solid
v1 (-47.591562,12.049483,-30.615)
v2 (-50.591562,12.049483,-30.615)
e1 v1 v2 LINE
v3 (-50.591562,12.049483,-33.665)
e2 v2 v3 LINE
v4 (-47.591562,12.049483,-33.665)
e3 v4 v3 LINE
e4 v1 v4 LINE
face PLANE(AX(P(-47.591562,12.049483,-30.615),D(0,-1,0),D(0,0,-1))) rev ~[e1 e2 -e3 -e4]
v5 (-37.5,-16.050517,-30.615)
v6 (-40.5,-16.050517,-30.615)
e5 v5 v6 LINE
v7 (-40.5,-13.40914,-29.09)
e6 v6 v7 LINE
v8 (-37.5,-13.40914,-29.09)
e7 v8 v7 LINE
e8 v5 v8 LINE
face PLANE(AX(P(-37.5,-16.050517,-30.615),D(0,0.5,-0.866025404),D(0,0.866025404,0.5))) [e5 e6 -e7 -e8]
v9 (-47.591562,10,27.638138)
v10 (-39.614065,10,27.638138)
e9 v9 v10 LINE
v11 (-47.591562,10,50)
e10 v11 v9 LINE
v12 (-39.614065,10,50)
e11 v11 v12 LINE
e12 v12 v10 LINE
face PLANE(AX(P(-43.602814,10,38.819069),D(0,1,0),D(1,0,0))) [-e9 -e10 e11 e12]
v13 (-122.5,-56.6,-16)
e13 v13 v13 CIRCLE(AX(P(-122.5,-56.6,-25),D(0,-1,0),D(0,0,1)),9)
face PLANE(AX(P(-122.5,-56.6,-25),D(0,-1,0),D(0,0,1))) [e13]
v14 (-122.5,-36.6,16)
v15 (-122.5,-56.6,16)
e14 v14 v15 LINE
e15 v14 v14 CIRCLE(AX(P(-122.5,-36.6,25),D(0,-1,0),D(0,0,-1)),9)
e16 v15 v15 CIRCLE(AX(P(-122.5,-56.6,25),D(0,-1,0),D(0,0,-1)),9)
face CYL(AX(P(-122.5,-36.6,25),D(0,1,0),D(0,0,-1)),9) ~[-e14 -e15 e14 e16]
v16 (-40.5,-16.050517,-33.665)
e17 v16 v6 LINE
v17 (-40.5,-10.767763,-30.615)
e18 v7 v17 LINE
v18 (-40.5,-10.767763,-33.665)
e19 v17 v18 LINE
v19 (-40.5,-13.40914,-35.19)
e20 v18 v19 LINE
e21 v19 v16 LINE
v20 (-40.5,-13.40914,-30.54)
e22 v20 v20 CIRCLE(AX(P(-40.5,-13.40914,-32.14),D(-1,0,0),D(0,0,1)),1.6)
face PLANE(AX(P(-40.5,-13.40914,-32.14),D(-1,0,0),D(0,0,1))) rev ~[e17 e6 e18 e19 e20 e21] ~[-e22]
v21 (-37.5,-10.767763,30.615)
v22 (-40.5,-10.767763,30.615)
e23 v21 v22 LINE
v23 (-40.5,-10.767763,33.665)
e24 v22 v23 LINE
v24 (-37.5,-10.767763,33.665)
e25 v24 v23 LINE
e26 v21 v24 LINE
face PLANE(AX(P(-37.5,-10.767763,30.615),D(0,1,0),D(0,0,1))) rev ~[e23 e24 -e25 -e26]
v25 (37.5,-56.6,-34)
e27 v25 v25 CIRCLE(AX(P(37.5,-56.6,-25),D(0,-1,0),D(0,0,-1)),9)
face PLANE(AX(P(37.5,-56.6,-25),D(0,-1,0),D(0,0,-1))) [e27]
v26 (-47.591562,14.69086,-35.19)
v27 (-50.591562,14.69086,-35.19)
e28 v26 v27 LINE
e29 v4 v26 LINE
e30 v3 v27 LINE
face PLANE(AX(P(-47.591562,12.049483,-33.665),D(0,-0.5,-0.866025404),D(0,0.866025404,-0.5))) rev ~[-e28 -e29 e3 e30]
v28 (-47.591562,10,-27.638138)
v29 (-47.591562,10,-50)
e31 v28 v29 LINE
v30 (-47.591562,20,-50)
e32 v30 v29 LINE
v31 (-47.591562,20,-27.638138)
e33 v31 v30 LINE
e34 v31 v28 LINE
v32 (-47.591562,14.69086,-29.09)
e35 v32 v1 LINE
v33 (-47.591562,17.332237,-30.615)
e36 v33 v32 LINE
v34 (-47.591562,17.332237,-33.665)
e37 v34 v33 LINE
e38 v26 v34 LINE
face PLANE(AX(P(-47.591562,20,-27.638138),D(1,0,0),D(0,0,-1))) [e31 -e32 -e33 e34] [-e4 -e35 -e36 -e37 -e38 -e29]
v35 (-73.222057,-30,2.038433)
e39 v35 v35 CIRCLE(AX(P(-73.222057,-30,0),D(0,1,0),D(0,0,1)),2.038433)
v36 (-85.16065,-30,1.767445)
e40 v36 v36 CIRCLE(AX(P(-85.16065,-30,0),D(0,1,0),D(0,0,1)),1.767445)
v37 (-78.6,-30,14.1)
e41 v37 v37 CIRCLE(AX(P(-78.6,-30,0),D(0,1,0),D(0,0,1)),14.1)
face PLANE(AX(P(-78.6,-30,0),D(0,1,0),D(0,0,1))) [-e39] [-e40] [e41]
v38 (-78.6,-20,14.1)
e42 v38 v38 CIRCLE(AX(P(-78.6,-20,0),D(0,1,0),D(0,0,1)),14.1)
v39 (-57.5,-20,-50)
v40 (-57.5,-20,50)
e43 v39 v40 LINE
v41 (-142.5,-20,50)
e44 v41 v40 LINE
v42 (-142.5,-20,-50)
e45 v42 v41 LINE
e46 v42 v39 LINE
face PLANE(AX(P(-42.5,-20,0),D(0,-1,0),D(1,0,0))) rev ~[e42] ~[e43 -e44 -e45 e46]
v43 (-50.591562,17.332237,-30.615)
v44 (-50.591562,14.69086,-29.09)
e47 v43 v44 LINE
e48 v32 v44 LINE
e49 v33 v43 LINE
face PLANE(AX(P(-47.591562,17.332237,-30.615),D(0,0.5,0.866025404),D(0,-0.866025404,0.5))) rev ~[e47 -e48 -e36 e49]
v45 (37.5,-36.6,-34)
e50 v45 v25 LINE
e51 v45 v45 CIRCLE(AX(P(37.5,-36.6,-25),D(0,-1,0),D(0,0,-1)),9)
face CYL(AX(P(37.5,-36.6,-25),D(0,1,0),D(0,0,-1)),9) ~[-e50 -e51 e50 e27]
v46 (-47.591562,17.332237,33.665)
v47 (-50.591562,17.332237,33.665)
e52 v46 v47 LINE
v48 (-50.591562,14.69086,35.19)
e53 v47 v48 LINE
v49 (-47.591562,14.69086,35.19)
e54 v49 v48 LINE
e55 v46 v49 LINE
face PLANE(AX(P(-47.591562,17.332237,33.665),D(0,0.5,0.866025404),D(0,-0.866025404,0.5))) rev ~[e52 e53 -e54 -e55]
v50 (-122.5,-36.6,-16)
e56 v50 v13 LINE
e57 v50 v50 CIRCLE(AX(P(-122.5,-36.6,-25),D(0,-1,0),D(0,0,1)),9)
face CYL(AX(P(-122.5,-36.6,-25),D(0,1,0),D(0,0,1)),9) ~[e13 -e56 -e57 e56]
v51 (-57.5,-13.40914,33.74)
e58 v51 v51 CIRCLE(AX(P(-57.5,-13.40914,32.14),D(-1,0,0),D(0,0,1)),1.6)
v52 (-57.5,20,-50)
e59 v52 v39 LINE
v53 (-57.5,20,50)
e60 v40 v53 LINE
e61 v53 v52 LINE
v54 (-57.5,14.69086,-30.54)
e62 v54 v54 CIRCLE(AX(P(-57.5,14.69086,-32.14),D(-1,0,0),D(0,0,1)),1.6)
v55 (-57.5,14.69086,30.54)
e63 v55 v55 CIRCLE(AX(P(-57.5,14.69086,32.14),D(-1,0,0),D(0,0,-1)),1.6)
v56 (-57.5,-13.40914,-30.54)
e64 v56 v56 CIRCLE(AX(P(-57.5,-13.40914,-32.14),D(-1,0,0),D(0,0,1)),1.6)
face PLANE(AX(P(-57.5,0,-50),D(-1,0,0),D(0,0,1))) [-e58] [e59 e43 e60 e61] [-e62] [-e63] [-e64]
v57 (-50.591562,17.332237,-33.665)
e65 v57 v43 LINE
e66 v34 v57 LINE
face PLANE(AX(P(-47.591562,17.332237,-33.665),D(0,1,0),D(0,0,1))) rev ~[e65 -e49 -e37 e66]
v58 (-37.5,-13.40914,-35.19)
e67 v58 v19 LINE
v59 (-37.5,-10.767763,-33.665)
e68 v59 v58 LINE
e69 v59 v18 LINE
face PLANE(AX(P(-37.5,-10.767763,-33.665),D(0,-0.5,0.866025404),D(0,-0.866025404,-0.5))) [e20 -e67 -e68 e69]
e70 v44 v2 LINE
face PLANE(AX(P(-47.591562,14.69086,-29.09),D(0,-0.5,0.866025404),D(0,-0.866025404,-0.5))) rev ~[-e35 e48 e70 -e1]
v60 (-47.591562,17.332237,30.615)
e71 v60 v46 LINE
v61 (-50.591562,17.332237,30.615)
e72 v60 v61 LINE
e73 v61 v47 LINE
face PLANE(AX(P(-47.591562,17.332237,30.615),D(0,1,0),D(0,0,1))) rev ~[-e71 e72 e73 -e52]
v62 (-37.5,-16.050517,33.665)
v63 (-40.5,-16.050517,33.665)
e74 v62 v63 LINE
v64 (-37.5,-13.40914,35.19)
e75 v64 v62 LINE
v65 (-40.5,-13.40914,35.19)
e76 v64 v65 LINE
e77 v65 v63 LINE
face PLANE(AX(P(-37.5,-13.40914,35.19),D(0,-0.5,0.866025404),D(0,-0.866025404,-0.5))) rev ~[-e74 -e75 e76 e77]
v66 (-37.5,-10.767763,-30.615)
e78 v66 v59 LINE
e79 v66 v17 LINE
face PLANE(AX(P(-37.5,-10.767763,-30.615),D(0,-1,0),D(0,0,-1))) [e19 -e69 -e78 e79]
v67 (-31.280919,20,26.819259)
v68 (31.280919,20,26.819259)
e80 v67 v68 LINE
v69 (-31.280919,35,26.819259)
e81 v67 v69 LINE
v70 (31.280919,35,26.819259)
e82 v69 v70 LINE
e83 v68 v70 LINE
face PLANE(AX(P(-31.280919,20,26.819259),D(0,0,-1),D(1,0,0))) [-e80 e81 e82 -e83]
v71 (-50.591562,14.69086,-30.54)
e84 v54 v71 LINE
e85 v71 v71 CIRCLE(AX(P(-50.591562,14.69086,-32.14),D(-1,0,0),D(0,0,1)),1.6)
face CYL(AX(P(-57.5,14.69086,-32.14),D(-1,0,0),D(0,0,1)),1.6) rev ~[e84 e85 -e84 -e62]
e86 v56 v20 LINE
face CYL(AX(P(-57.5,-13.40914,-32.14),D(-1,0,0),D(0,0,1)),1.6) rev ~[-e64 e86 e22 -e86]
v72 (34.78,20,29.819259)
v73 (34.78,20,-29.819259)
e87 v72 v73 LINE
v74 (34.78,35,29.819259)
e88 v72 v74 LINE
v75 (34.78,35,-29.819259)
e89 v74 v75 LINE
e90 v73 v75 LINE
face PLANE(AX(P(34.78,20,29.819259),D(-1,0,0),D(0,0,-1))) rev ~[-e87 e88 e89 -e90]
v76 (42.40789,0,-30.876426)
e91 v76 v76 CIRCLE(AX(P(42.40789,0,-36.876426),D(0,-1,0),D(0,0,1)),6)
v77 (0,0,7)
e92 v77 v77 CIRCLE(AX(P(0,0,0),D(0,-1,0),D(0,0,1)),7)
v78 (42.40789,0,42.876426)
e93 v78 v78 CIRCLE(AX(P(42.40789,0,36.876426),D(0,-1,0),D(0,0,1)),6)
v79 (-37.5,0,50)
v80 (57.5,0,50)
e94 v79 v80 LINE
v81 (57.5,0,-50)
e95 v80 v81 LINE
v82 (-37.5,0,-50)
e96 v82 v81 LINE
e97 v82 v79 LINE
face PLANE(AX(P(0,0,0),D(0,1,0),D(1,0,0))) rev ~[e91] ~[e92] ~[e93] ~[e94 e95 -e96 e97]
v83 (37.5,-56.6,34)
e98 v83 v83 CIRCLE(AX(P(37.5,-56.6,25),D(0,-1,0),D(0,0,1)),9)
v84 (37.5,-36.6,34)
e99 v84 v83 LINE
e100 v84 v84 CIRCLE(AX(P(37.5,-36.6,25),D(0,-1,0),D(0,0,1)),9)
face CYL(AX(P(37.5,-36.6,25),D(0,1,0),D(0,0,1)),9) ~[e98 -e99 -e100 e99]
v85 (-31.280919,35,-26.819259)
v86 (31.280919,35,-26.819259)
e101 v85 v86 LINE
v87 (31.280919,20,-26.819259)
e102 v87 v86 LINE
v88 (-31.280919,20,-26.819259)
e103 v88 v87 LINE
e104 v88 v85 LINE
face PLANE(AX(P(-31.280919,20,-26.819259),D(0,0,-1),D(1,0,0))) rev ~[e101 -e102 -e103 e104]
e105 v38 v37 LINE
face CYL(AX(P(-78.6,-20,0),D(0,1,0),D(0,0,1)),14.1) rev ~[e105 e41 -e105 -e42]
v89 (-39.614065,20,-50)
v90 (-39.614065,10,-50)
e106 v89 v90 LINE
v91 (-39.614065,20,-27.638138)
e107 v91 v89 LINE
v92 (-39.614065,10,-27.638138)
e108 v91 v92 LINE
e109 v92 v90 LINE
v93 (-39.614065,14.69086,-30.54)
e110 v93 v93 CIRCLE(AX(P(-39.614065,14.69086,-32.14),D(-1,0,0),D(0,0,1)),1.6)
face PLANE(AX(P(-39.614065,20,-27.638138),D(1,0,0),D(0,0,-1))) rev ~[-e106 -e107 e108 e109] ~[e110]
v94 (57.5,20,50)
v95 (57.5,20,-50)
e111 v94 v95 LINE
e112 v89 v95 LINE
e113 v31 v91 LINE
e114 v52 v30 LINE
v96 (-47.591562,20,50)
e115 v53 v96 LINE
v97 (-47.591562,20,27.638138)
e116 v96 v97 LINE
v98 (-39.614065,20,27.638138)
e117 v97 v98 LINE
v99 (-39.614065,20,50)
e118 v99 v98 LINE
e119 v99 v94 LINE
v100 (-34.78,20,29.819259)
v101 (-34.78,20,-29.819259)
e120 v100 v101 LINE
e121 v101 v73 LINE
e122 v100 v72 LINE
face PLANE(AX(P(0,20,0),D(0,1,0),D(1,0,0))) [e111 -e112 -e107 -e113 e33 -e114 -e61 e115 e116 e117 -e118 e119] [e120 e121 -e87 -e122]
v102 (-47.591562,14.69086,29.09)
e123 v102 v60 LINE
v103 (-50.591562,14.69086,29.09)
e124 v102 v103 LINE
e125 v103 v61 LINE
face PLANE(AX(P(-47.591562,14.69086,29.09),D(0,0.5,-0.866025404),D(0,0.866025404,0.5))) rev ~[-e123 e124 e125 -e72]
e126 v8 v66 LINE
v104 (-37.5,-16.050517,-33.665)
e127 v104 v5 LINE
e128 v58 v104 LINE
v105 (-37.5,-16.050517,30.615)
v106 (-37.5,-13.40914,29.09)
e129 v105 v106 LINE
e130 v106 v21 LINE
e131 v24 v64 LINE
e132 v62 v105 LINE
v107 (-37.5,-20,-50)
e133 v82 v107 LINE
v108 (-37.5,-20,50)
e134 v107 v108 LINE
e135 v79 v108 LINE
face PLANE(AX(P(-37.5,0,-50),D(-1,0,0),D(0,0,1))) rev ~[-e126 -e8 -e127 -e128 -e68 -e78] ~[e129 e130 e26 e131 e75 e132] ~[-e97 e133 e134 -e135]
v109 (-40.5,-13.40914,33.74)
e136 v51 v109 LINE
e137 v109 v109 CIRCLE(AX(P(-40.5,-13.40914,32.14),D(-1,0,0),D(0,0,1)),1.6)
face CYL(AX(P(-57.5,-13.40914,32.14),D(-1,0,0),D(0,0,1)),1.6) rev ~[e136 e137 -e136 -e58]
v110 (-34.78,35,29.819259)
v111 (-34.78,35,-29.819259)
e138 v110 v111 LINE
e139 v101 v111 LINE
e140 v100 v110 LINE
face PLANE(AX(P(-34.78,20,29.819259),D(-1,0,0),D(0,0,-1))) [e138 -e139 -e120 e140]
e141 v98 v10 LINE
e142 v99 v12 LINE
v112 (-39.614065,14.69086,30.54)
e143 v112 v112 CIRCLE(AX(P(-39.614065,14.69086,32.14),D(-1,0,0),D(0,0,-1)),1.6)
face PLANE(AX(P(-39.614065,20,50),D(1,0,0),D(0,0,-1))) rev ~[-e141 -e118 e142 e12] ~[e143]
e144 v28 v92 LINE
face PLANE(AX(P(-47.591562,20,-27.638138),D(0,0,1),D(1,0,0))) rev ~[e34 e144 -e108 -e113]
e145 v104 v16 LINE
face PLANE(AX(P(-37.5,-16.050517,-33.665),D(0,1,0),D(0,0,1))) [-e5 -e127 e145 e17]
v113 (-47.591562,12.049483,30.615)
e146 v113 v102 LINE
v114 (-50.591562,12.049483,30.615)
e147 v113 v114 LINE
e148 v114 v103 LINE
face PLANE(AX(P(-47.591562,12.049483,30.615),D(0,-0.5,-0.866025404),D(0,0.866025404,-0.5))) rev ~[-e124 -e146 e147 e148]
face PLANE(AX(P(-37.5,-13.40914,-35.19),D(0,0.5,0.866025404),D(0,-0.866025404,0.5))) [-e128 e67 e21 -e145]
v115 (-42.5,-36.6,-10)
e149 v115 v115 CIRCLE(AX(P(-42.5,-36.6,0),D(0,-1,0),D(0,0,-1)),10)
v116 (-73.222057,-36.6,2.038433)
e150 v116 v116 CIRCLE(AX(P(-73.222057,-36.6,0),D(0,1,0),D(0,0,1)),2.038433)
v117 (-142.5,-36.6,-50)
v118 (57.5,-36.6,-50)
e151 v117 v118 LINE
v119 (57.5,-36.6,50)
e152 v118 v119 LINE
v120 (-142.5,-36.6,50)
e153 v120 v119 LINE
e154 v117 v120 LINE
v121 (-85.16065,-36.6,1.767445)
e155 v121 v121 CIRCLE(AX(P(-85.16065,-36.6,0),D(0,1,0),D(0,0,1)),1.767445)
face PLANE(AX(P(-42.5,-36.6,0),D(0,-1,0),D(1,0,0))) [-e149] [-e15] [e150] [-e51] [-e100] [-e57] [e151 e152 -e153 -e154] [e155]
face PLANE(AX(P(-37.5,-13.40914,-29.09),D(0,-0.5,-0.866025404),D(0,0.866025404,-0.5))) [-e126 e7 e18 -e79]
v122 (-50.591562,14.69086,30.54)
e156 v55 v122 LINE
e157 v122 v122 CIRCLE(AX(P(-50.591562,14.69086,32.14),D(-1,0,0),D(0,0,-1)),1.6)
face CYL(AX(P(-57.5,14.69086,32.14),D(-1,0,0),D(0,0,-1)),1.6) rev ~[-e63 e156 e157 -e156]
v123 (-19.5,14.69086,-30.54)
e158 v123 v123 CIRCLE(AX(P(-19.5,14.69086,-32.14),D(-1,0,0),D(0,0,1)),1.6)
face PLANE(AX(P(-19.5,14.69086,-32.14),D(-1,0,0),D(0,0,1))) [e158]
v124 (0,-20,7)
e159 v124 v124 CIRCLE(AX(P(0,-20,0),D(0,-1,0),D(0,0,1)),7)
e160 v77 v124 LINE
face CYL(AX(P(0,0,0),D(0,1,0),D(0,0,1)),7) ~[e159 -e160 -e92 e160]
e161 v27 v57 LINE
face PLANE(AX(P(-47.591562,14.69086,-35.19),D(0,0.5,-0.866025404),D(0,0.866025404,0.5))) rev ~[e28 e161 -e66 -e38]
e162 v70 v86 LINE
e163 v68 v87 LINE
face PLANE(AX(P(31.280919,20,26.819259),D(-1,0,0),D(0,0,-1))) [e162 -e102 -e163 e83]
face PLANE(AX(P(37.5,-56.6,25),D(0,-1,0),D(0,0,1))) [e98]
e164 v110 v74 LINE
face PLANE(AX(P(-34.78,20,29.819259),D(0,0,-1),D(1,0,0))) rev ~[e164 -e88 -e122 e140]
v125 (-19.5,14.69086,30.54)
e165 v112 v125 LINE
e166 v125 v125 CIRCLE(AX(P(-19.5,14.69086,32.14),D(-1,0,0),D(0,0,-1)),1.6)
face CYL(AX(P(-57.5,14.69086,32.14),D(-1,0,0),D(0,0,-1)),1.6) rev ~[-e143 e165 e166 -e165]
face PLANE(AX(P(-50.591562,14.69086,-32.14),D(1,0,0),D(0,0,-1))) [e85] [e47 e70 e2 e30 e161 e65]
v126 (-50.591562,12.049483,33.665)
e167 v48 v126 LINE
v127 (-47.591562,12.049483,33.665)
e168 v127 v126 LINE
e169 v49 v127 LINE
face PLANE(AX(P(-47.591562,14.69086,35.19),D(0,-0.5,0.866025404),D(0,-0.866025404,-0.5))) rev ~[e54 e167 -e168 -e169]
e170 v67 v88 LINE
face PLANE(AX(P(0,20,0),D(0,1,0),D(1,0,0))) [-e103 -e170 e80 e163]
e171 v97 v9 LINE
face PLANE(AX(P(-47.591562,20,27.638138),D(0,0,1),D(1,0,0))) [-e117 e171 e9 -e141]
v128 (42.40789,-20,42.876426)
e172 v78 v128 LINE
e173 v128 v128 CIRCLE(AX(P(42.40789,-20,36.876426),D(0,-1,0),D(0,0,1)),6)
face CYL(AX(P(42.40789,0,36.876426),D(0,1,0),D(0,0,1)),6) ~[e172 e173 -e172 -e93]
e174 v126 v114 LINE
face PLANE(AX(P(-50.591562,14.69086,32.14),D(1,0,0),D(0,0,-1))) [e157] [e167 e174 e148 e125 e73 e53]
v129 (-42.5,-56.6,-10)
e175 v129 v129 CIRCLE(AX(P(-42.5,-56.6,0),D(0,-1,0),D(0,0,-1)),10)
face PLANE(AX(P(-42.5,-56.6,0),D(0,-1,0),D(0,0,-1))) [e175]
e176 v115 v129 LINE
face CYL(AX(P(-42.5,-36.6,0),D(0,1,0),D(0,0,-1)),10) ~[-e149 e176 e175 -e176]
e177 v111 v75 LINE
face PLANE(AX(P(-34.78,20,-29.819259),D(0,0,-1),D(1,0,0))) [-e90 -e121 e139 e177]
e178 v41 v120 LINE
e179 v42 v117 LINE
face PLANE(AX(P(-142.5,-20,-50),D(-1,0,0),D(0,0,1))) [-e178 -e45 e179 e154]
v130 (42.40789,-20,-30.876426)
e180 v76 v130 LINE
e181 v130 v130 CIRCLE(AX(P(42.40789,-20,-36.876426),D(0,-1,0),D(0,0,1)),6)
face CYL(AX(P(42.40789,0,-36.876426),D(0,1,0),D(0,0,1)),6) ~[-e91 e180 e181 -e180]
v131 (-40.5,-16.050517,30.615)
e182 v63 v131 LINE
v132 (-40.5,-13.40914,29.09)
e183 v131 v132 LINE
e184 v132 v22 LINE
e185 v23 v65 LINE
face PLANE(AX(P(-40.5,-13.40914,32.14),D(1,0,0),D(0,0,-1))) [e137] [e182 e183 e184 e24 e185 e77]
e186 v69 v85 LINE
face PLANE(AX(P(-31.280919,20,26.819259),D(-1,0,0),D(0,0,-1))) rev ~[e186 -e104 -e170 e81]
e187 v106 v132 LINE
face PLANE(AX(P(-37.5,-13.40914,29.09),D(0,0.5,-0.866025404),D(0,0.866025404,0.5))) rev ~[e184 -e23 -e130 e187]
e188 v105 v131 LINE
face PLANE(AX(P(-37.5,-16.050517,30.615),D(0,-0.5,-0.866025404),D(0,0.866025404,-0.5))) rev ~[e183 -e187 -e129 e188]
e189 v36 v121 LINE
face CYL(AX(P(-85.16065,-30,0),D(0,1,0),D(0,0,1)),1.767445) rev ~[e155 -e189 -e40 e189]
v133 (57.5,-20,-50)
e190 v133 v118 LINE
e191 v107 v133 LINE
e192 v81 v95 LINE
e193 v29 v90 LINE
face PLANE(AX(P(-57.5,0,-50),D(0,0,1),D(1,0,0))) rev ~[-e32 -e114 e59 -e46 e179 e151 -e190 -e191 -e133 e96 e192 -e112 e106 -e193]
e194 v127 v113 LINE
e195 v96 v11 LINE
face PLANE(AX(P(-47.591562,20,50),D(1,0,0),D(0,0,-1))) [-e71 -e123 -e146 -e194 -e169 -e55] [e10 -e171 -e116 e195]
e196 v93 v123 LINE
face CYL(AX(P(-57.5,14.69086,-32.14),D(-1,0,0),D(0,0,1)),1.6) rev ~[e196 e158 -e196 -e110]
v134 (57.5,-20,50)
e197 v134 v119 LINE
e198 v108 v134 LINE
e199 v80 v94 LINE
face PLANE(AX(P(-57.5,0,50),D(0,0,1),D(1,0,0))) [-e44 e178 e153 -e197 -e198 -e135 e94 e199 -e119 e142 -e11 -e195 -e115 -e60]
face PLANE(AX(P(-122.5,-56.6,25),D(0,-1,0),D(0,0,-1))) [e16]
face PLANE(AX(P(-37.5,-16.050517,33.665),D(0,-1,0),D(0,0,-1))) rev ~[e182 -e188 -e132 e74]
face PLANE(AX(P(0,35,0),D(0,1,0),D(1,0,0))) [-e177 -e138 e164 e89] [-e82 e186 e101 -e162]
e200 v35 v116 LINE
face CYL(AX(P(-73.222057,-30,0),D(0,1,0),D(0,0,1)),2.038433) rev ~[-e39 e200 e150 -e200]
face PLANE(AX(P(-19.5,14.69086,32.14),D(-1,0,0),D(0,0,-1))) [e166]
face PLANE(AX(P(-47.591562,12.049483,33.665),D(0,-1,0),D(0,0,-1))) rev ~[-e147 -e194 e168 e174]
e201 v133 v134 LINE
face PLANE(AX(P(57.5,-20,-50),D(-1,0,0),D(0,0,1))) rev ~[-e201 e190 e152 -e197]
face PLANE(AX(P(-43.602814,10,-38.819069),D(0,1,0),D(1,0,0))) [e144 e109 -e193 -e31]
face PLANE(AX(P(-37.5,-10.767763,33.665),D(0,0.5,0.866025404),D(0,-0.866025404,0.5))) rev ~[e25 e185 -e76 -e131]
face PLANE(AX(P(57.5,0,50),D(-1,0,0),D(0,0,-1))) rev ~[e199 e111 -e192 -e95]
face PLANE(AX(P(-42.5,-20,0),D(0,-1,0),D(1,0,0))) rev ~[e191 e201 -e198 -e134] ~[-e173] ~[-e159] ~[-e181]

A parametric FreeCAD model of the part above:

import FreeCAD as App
import Part
import Sketcher
from FreeCAD import Vector
Q = App.Units.Quantity

doc = App.newDocument("Part")
params = doc.addObject("Spreadsheet::Sheet", "Params")
for row, (alias, value) in enumerate([
    ("sketch1_width", "115 mm"),
    ("sketch1_height", "100 mm"),
    ("pad1_length", "20 mm"),
    ("sketch2_diameter", "14 mm"),
    ("sketch2_diameter2", "12 mm"),
    ("pad2_length", "20 mm"),
    ("sketch3_width", "200 mm"),
    ("sketch3_height", "100 mm"),
    ("pad3_length", "16.6 mm"),
    ("sketch4_diameter", "18 mm"),
    ("sketch4_diameter2", "20 mm"),
    ("pad4_length", "20 mm"),
    ("sketch5_width", "69.56 mm"),
    ("pad5_length", "15 mm"),
    ("sketch6_width", "20 mm"),
    ("sketch6_height", "100 mm"),
    ("pad6_length", "20 mm"),
    ("sketch7_diameter", "28.2 mm"),
    ("pocket1_length", "10 mm"),
    ("pocket2_length", "20 mm"),
    ("sketch9_diameter", "3.2 mm"),
    ("pocket3_length", "38 mm"),
    ("sketch10_height", "3.05 mm"),
    ("pocket4_length", "3 mm"),
    ("pocket5_length", "10 mm"),
    ("sketch12_height", "3.05 mm"),
    ("pocket6_length", "3 mm"),
    ("sketch13_height", "3.05 mm"),
    ("pocket7_length", "3 mm"),
], start=1):
    params.set(f"A{row}", alias)
    params.set(f"B{row}", "=" + value)
    params.setAlias(f"B{row}", alias)

body = doc.addObject("PartDesign::Body", "Body")

sketch1 = doc.addObject("Sketcher::SketchObject", "Sketch")
body.addObject(sketch1)
sketch1.AttachmentSupport = (doc.XZ_Plane, [""])
sketch1.MapMode = "FlatFace"
sketch1.addGeometry([
    Part.LineSegment(Vector(-57.5, -50, 0), Vector(-57.5, 50, 0)),
    Part.LineSegment(Vector(-57.5, 50, 0), Vector(57.5, 50, 0)),
    Part.LineSegment(Vector(57.5, 50, 0), Vector(57.5, -50, 0)),
    Part.LineSegment(Vector(57.5, -50, 0), Vector(-57.5, -50, 0)),
], False)
sketch1.addConstraint([
    Sketcher.Constraint("Coincident", 0, 2, 1, 1),
    Sketcher.Constraint("Coincident", 1, 2, 2, 1),
    Sketcher.Constraint("Coincident", 2, 2, 3, 1),
    Sketcher.Constraint("Coincident", 3, 2, 0, 1),
    Sketcher.Constraint("Vertical", 0),
    Sketcher.Constraint("Horizontal", 1),
    Sketcher.Constraint("Vertical", 2),
    Sketcher.Constraint("Horizontal", 3),
    Sketcher.Constraint("Symmetric", 0, 2, 2, 2, -1, 1),
    Sketcher.Constraint("DistanceX", 1, 1, 1, 2, Q("115 mm")),
    Sketcher.Constraint("DistanceY", 0, 1, 0, 2, Q("100 mm")),
])
sketch1.setExpression("Constraints[9]", "Params.sketch1_width")
sketch1.setExpression("Constraints[10]", "Params.sketch1_height")
pad1 = doc.addObject("PartDesign::Pad", "Pad")
body.addObject(pad1)
pad1.Profile = sketch1
pad1.setExpression("Length", "Params.pad1_length")
pad1.Reversed = True

sketch2 = doc.addObject("Sketcher::SketchObject", "Sketch001")
body.addObject(sketch2)
sketch2.AttachmentSupport = (doc.XZ_Plane, [""])
sketch2.MapMode = "FlatFace"
sketch2.addGeometry([
    Part.Circle(Vector(0, 0, 0), Vector(0, 0, 1), 7),
    Part.Circle(Vector(42.40789, -36.876426, 0), Vector(0, 0, 1), 6),
    Part.Circle(Vector(42.40789, 36.876426, 0), Vector(0, 0, 1), 6),
], False)
sketch2.addConstraint([
    Sketcher.Constraint("Coincident", 0, 3, -1, 1),
    Sketcher.Constraint("Equal", 1, 2),
    Sketcher.Constraint("Symmetric", 1, 3, 2, 3, -1),
    Sketcher.Constraint("Diameter", 0, Q("14 mm")),
    Sketcher.Constraint("Diameter", 1, Q("12 mm")),
    Sketcher.Constraint("DistanceX", -1, 1, 1, 3, Q("42.40789 mm")),
    Sketcher.Constraint("DistanceY", 1, 3, 2, 3, Q("73.752851 mm")),
])
sketch2.setExpression("Constraints[3]", "Params.sketch2_diameter")
sketch2.setExpression("Constraints[4]", "Params.sketch2_diameter2")
pad2 = doc.addObject("PartDesign::Pad", "Pad001")
body.addObject(pad2)
pad2.Profile = sketch2
pad2.setExpression("Length", "Params.pad2_length")

sketch3 = doc.addObject("Sketcher::SketchObject", "Sketch002")
body.addObject(sketch3)
sketch3.AttachmentSupport = (doc.XZ_Plane, [""])
sketch3.MapMode = "FlatFace"
sketch3.AttachmentOffset = App.Placement(Vector(0, 0, 20), App.Rotation())
sketch3.addGeometry([
    Part.LineSegment(Vector(-142.5, 50, 0), Vector(-142.5, -50, 0)),
    Part.LineSegment(Vector(-142.5, -50, 0), Vector(57.5, -50, 0)),
    Part.LineSegment(Vector(57.5, -50, 0), Vector(57.5, 50, 0)),
    Part.LineSegment(Vector(57.5, 50, 0), Vector(-142.5, 50, 0)),
], False)
sketch3.addConstraint([
    Sketcher.Constraint("Coincident", 0, 2, 1, 1),
    Sketcher.Constraint("Coincident", 1, 2, 2, 1),
    Sketcher.Constraint("Coincident", 2, 2, 3, 1),
    Sketcher.Constraint("Coincident", 3, 2, 0, 1),
    Sketcher.Constraint("Vertical", 0),
    Sketcher.Constraint("Horizontal", 1),
    Sketcher.Constraint("Vertical", 2),
    Sketcher.Constraint("Horizontal", 3),
    Sketcher.Constraint("DistanceX", 1, 1, 1, 2, Q("200 mm")),
    Sketcher.Constraint("DistanceY", 0, 2, 0, 1, Q("100 mm")),
    Sketcher.Constraint("DistanceY", 0, 2, -1, 1, Q("50 mm")),
    Sketcher.Constraint("DistanceX", 0, 2, -1, 1, Q("142.5 mm")),
])
sketch3.setExpression("Constraints[8]", "Params.sketch3_width")
sketch3.setExpression("Constraints[9]", "Params.sketch3_height")
pad3 = doc.addObject("PartDesign::Pad", "Pad002")
body.addObject(pad3)
pad3.Profile = sketch3
pad3.setExpression("Length", "Params.pad3_length")

sketch4 = doc.addObject("Sketcher::SketchObject", "Sketch003")
body.addObject(sketch4)
sketch4.AttachmentSupport = (doc.XZ_Plane, [""])
sketch4.MapMode = "FlatFace"
sketch4.AttachmentOffset = App.Placement(Vector(0, 0, 36.6), App.Rotation())
sketch4.addGeometry([
    Part.Circle(Vector(37.5, -25, 0), Vector(0, 0, 1), 9),
    Part.Circle(Vector(-122.5, -25, 0), Vector(0, 0, 1), 9),
    Part.Circle(Vector(-122.5, 25, 0), Vector(0, 0, 1), 9),
    Part.Circle(Vector(37.5, 25, 0), Vector(0, 0, 1), 9),
    Part.Circle(Vector(-42.5, 0, 0), Vector(0, 0, 1), 10),
], False)
sketch4.addConstraint([
    Sketcher.Constraint("Equal", 0, 1),
    Sketcher.Constraint("Equal", 1, 2),
    Sketcher.Constraint("Equal", 2, 3),
    Sketcher.Constraint("Symmetric", 1, 3, 2, 3, -1),
    Sketcher.Constraint("Symmetric", 0, 3, 3, 3, -1),
    Sketcher.Constraint("PointOnObject", 4, 3, -1),
    Sketcher.Constraint("Horizontal", 0, 3, 1, 3),
    Sketcher.Constraint("Diameter", 0, Q("18 mm")),
    Sketcher.Constraint("Diameter", 4, Q("20 mm")),
    Sketcher.Constraint("DistanceY", 0, 3, -1, 1, Q("25 mm")),
    Sketcher.Constraint("DistanceX", 1, 3, 0, 3, Q("160 mm")),
    Sketcher.Constraint("DistanceX", 4, 3, 0, 3, Q("80 mm")),
    Sketcher.Constraint("DistanceX", -1, 1, 0, 3, Q("37.5 mm")),
])
sketch4.setExpression("Constraints[7]", "Params.sketch4_diameter")
sketch4.setExpression("Constraints[8]", "Params.sketch4_diameter2")
pad4 = doc.addObject("PartDesign::Pad", "Pad003")
body.addObject(pad4)
pad4.Profile = sketch4
pad4.setExpression("Length", "Params.pad4_length")

sketch5 = doc.addObject("Sketcher::SketchObject", "Sketch004")
body.addObject(sketch5)
sketch5.AttachmentSupport = (doc.XZ_Plane, [""])
sketch5.MapMode = "FlatFace"
sketch5.AttachmentOffset = App.Placement(Vector(0, 0, -20), App.Rotation())
sketch5.addGeometry([
    Part.LineSegment(Vector(-34.78, -29.819259, 0), Vector(-34.78, 29.819259, 0)),
    Part.LineSegment(Vector(-34.78, 29.819259, 0), Vector(34.78, 29.819259, 0)),
    Part.LineSegment(Vector(34.78, 29.819259, 0), Vector(34.78, -29.819259, 0)),
    Part.LineSegment(Vector(34.78, -29.819259, 0), Vector(-34.78, -29.819259, 0)),
    Part.LineSegment(Vector(31.280919, 26.819259, 0), Vector(-31.280919, 26.819259, 0)),
    Part.LineSegment(Vector(-31.280919, 26.819259, 0), Vector(-31.280919, -26.819259, 0)),
    Part.LineSegment(Vector(-31.280919, -26.819259, 0), Vector(31.280919, -26.819259, 0)),
    Part.LineSegment(Vector(31.280919, -26.819259, 0), Vector(31.280919, 26.819259, 0)),
], False)
sketch5.addConstraint([
    Sketcher.Constraint("Coincident", 0, 2, 1, 1),
    Sketcher.Constraint("Coincident", 1, 2, 2, 1),
    Sketcher.Constraint("Coincident", 2, 2, 3, 1),
    Sketcher.Constraint("Coincident", 3, 2, 0, 1),
    Sketcher.Constraint("Coincident", 4, 2, 5, 1),
    Sketcher.Constraint("Coincident", 5, 2, 6, 1),
    Sketcher.Constraint("Coincident", 6, 2, 7, 1),
    Sketcher.Constraint("Coincident", 7, 2, 4, 1),
    Sketcher.Constraint("Vertical", 0),
    Sketcher.Constraint("Horizontal", 1),
    Sketcher.Constraint("Vertical", 2),
    Sketcher.Constraint("Horizontal", 3),
    Sketcher.Constraint("Horizontal", 4),
    Sketcher.Constraint("Vertical", 5),
    Sketcher.Constraint("Horizontal", 6),
    Sketcher.Constraint("Vertical", 7),
    Sketcher.Constraint("Symmetric", 0, 2, 2, 2, -1, 1),
    Sketcher.Constraint("Symmetric", 4, 2, 6, 2, -1, 1),
    Sketcher.Constraint("DistanceY", 4, 2, 0, 2, Q("3 mm")),
    Sketcher.Constraint("DistanceX", 1, 1, 1, 2, Q("69.56 mm")),
    Sketcher.Constraint("DistanceX", 4, 2, 4, 1, Q("62.561838 mm")),
    Sketcher.Constraint("DistanceY", 0, 1, 0, 2, Q("59.638519 mm")),
])
sketch5.setExpression("Constraints[19]", "Params.sketch5_width")
pad5 = doc.addObject("PartDesign::Pad", "Pad004")
body.addObject(pad5)
pad5.Profile = sketch5
pad5.setExpression("Length", "Params.pad5_length")
pad5.Reversed = True

sketch6 = doc.addObject("Sketcher::SketchObject", "Sketch005")
body.addObject(sketch6)
sketch6.AttachmentSupport = (doc.XZ_Plane, [""])
sketch6.MapMode = "FlatFace"
sketch6.addGeometry([
    Part.LineSegment(Vector(-57.5, 50, 0), Vector(-57.5, -50, 0)),
    Part.LineSegment(Vector(-57.5, -50, 0), Vector(-37.5, -50, 0)),
    Part.LineSegment(Vector(-37.5, -50, 0), Vector(-37.5, 50, 0)),
    Part.LineSegment(Vector(-37.5, 50, 0), Vector(-57.5, 50, 0)),
], False)
sketch6.addConstraint([
    Sketcher.Constraint("Coincident", 0, 2, 1, 1),
    Sketcher.Constraint("Coincident", 1, 2, 2, 1),
    Sketcher.Constraint("Coincident", 2, 2, 3, 1),
    Sketcher.Constraint("Coincident", 3, 2, 0, 1),
    Sketcher.Constraint("Vertical", 0),
    Sketcher.Constraint("Horizontal", 1),
    Sketcher.Constraint("Vertical", 2),
    Sketcher.Constraint("Horizontal", 3),
    Sketcher.Constraint("DistanceX", 1, 1, 1, 2, Q("20 mm")),
    Sketcher.Constraint("DistanceY", 0, 2, 0, 1, Q("100 mm")),
    Sketcher.Constraint("DistanceY", 0, 2, -1, 1, Q("50 mm")),
    Sketcher.Constraint("DistanceX", 0, 2, -1, 1, Q("57.5 mm")),
])
sketch6.setExpression("Constraints[8]", "Params.sketch6_width")
sketch6.setExpression("Constraints[9]", "Params.sketch6_height")
pad6 = doc.addObject("PartDesign::Pad", "Pad005")
body.addObject(pad6)
pad6.Profile = sketch6
pad6.setExpression("Length", "Params.pad6_length")

sketch7 = doc.addObject("Sketcher::SketchObject", "Sketch006")
body.addObject(sketch7)
sketch7.AttachmentSupport = (doc.XZ_Plane, [""])
sketch7.MapMode = "FlatFace"
sketch7.AttachmentOffset = App.Placement(Vector(0, 0, 20), App.Rotation())
sketch7.addGeometry(Part.Circle(Vector(-78.6, 0, 0), Vector(0, 0, 1), 14.1), False)
sketch7.addConstraint([
    Sketcher.Constraint("PointOnObject", 0, 3, -1),
    Sketcher.Constraint("Diameter", 0, Q("28.2 mm")),
    Sketcher.Constraint("DistanceX", 0, 3, -1, 1, Q("78.6 mm")),
])
sketch7.setExpression("Constraints[1]", "Params.sketch7_diameter")
pocket1 = doc.addObject("PartDesign::Pocket", "Pocket")
body.addObject(pocket1)
pocket1.Profile = sketch7
pocket1.setExpression("Length", "Params.pocket1_length")
pocket1.Reversed = True

sketch8 = doc.addObject("Sketcher::SketchObject", "Sketch007")
body.addObject(sketch8)
sketch8.AttachmentSupport = (doc.XZ_Plane, [""])
sketch8.MapMode = "FlatFace"
sketch8.AttachmentOffset = App.Placement(Vector(0, 0, 30), App.Rotation())
sketch8.addGeometry([
    Part.Circle(Vector(-85.16065, 0, 0), Vector(0, 0, 1), 1.767445),
    Part.Circle(Vector(-73.222057, 0, 0), Vector(0, 0, 1), 2.038433),
], False)
sketch8.addConstraint([
    Sketcher.Constraint("PointOnObject", 0, 3, -1),
    Sketcher.Constraint("PointOnObject", 1, 3, -1),
    Sketcher.Constraint("Diameter", 0, Q("3.534891 mm")),
    Sketcher.Constraint("Diameter", 1, Q("4.076866 mm")),
    Sketcher.Constraint("DistanceX", 0, 3, -1, 1, Q("85.16065 mm")),
    Sketcher.Constraint("DistanceX", 1, 3, -1, 1, Q("73.222057 mm")),
])
pocket2 = doc.addObject("PartDesign::Pocket", "Pocket001")
body.addObject(pocket2)
pocket2.Profile = sketch8
pocket2.setExpression("Length", "Params.pocket2_length")
pocket2.Reversed = True

sketch9 = doc.addObject("Sketcher::SketchObject", "Sketch008")
body.addObject(sketch9)
sketch9.AttachmentSupport = (doc.YZ_Plane, [""])
sketch9.MapMode = "FlatFace"
sketch9.AttachmentOffset = App.Placement(Vector(0, 0, -57.5), App.Rotation())
sketch9.addGeometry([
    Part.Circle(Vector(-13.40914, -32.14, 0), Vector(0, 0, 1), 1.6),
    Part.Circle(Vector(-13.40914, 32.14, 0), Vector(0, 0, 1), 1.6),
    Part.Circle(Vector(14.69086, -32.14, 0), Vector(0, 0, 1), 1.6),
    Part.Circle(Vector(14.69086, 32.14, 0), Vector(0, 0, 1), 1.6),
], False)
sketch9.addConstraint([
    Sketcher.Constraint("Equal", 0, 1),
    Sketcher.Constraint("Equal", 1, 2),
    Sketcher.Constraint("Equal", 2, 3),
    Sketcher.Constraint("Symmetric", 0, 3, 1, 3, -1),
    Sketcher.Constraint("Symmetric", 2, 3, 3, 3, -1),
    Sketcher.Constraint("Horizontal", 0, 3, 2, 3),
    Sketcher.Constraint("Diameter", 0, Q("3.2 mm")),
    Sketcher.Constraint("DistanceX", 0, 3, 2, 3, Q("28.1 mm")),
    Sketcher.Constraint("DistanceY", 0, 3, -1, 1, Q("32.14 mm")),
    Sketcher.Constraint("DistanceX", 0, 3, -1, 1, Q("13.40914 mm")),
])
sketch9.setExpression("Constraints[6]", "Params.sketch9_diameter")
pocket3 = doc.addObject("PartDesign::Pocket", "Pocket002")
body.addObject(pocket3)
pocket3.Profile = sketch9
pocket3.setExpression("Length", "Params.pocket3_length")
pocket3.Reversed = True

sketch10 = doc.addObject("Sketcher::SketchObject", "Sketch009")
body.addObject(sketch10)
sketch10.AttachmentSupport = (doc.YZ_Plane, [""])
sketch10.MapMode = "FlatFace"
sketch10.AttachmentOffset = App.Placement(Vector(0, 0, -37.5), App.Rotation())
sketch10.addGeometry([
    Part.LineSegment(Vector(-13.40914, 29.09, 0), Vector(-10.767763, 30.615, 0)),
    Part.LineSegment(Vector(-10.767763, 30.615, 0), Vector(-10.767763, 33.665, 0)),
    Part.LineSegment(Vector(-10.767763, 33.665, 0), Vector(-13.40914, 35.19, 0)),
    Part.LineSegment(Vector(-13.40914, 35.19, 0), Vector(-16.050517, 33.665, 0)),
    Part.LineSegment(Vector(-16.050517, 33.665, 0), Vector(-16.050517, 30.615, 0)),
    Part.LineSegment(Vector(-16.050517, 30.615, 0), Vector(-13.40914, 29.09, 0)),
    Part.LineSegment(Vector(-13.40914, -29.09, 0), Vector(-16.050517, -30.615, 0)),
    Part.LineSegment(Vector(-16.050517, -30.615, 0), Vector(-16.050517, -33.665, 0)),
    Part.LineSegment(Vector(-16.050517, -33.665, 0), Vector(-13.40914, -35.19, 0)),
    Part.LineSegment(Vector(-13.40914, -35.19, 0), Vector(-10.767763, -33.665, 0)),
    Part.LineSegment(Vector(-10.767763, -33.665, 0), Vector(-10.767763, -30.615, 0)),
    Part.LineSegment(Vector(-10.767763, -30.615, 0), Vector(-13.40914, -29.09, 0)),
], False)
sketch10.addConstraint([
    Sketcher.Constraint("Coincident", 0, 2, 1, 1),
    Sketcher.Constraint("Coincident", 1, 2, 2, 1),
    Sketcher.Constraint("Coincident", 2, 2, 3, 1),
    Sketcher.Constraint("Coincident", 3, 2, 4, 1),
    Sketcher.Constraint("Coincident", 4, 2, 5, 1),
    Sketcher.Constraint("Coincident", 5, 2, 0, 1),
    Sketcher.Constraint("Coincident", 6, 2, 7, 1),
    Sketcher.Constraint("Coincident", 7, 2, 8, 1),
    Sketcher.Constraint("Coincident", 8, 2, 9, 1),
    Sketcher.Constraint("Coincident", 9, 2, 10, 1),
    Sketcher.Constraint("Coincident", 10, 2, 11, 1),
    Sketcher.Constraint("Coincident", 11, 2, 6, 1),
    Sketcher.Constraint("Vertical", 1),
    Sketcher.Constraint("Vertical", 4),
    Sketcher.Constraint("Vertical", 7),
    Sketcher.Constraint("Vertical", 10),
    Sketcher.Constraint("Symmetric", 4, 2, 6, 2, -1),
    Sketcher.Constraint("Symmetric", 2, 2, 8, 2, -1),
    Sketcher.Constraint("Symmetric", 1, 2, 9, 2, -1),
    Sketcher.Constraint("Symmetric", 5, 2, 11, 2, -1),
    Sketcher.Constraint("Parallel", 0, 3),
    Sketcher.Constraint("Parallel", 2, 5),
    Sketcher.Constraint("Parallel", 3, 6),
    Sketcher.Constraint("Parallel", 5, 8),
    Sketcher.Constraint("Parallel", 8, 11),
    Sketcher.Constraint("Horizontal", 1, 2, 3, 2),
    Sketcher.Constraint("Horizontal", 0, 2, 4, 2),
    Sketcher.Constraint("Angle", 0, Q("30 deg")),
    Sketcher.Constraint("DistanceY", 1, 1, 1, 2, Q("3.05 mm")),
    Sketcher.Constraint("DistanceY", 5, 2, 2, 2, Q("6.1 mm")),
    Sketcher.Constraint("DistanceY", -1, 1, 2, 2, Q("35.19 mm")),
    Sketcher.Constraint("DistanceX", 2, 2, -1, 1, Q("13.40914 mm")),
])
sketch10.setExpression("Constraints[28]", "Params.sketch10_height")
pocket4 = doc.addObject("PartDesign::Pocket", "Pocket003")
body.addObject(pocket4)
pocket4.Profile = sketch10
pocket4.setExpression("Length", "Params.pocket4_length")

sketch11 = doc.addObject("Sketcher::SketchObject", "Sketch010")
body.addObject(sketch11)
sketch11.AttachmentSupport = (doc.XZ_Plane, [""])
sketch11.MapMode = "FlatFace"
sketch11.AttachmentOffset = App.Placement(Vector(0, 0, -20), App.Rotation())
sketch11.addGeometry([
    Part.LineSegment(Vector(-47.591562, 27.638138, 0), Vector(-47.591562, 50, 0)),
    Part.LineSegment(Vector(-47.591562, 50, 0), Vector(-39.614065, 50, 0)),
    Part.LineSegment(Vector(-39.614065, 50, 0), Vector(-39.614065, 27.638138, 0)),
    Part.LineSegment(Vector(-39.614065, 27.638138, 0), Vector(-47.591562, 27.638138, 0)),
    Part.LineSegment(Vector(-47.591562, -50, 0), Vector(-47.591562, -27.638138, 0)),
    Part.LineSegment(Vector(-47.591562, -27.638138, 0), Vector(-39.614065, -27.638138, 0)),
    Part.LineSegment(Vector(-39.614065, -27.638138, 0), Vector(-39.614065, -50, 0)),
    Part.LineSegment(Vector(-39.614065, -50, 0), Vector(-47.591562, -50, 0)),
], False)
sketch11.addConstraint([
    Sketcher.Constraint("Coincident", 0, 2, 1, 1),
    Sketcher.Constraint("Coincident", 1, 2, 2, 1),
    Sketcher.Constraint("Coincident", 2, 2, 3, 1),
    Sketcher.Constraint("Coincident", 3, 2, 0, 1),
    Sketcher.Constraint("Coincident", 4, 2, 5, 1),
    Sketcher.Constraint("Coincident", 5, 2, 6, 1),
    Sketcher.Constraint("Coincident", 6, 2, 7, 1),
    Sketcher.Constraint("Coincident", 7, 2, 4, 1),
    Sketcher.Constraint("Vertical", 0),
    Sketcher.Constraint("Horizontal", 1),
    Sketcher.Constraint("Vertical", 2),
    Sketcher.Constraint("Horizontal", 3),
    Sketcher.Constraint("Vertical", 4),
    Sketcher.Constraint("Horizontal", 5),
    Sketcher.Constraint("Vertical", 6),
    Sketcher.Constraint("Horizontal", 7),
    Sketcher.Constraint("Symmetric", 3, 2, 4, 2, -1),
    Sketcher.Constraint("Symmetric", 1, 2, 6, 2, -1),
    Sketcher.Constraint("DistanceY", -1, 1, 0, 2, Q("50 mm")),
    Sketcher.Constraint("DistanceY", 0, 1, 0, 2, Q("22.361862 mm")),
    Sketcher.Constraint("DistanceX", 1, 1, 1, 2, Q("7.977497 mm")),
    Sketcher.Constraint("DistanceX", 0, 2, -1, 1, Q("47.591562 mm")),
])
pocket5 = doc.addObject("PartDesign::Pocket", "Pocket004")
body.addObject(pocket5)
pocket5.Profile = sketch11
pocket5.setExpression("Length", "Params.pocket5_length")
pocket5.Reversed = True

sketch12 = doc.addObject("Sketcher::SketchObject", "Sketch011")
body.addObject(sketch12)
sketch12.AttachmentSupport = (doc.YZ_Plane, [""])
sketch12.MapMode = "FlatFace"
sketch12.AttachmentOffset = App.Placement(Vector(0, 0, -47.591562), App.Rotation())
sketch12.addGeometry([
    Part.LineSegment(Vector(17.332237, 33.665, 0), Vector(14.69086, 35.19, 0)),
    Part.LineSegment(Vector(14.69086, 35.19, 0), Vector(12.049483, 33.665, 0)),
    Part.LineSegment(Vector(12.049483, 33.665, 0), Vector(12.049483, 30.615, 0)),
    Part.LineSegment(Vector(12.049483, 30.615, 0), Vector(14.69086, 29.09, 0)),
    Part.LineSegment(Vector(14.69086, 29.09, 0), Vector(17.332237, 30.615, 0)),
    Part.LineSegment(Vector(17.332237, 30.615, 0), Vector(17.332237, 33.665, 0)),
], False)
sketch12.addConstraint([
    Sketcher.Constraint("Coincident", 0, 2, 1, 1),
    Sketcher.Constraint("Coincident", 1, 2, 2, 1),
    Sketcher.Constraint("Coincident", 2, 2, 3, 1),
    Sketcher.Constraint("Coincident", 3, 2, 4, 1),
    Sketcher.Constraint("Coincident", 4, 2, 5, 1),
    Sketcher.Constraint("Coincident", 5, 2, 0, 1),
    Sketcher.Constraint("Vertical", 2),
    Sketcher.Constraint("Vertical", 5),
    Sketcher.Constraint("Parallel", 0, 3),
    Sketcher.Constraint("Parallel", 1, 4),
    Sketcher.Constraint("Horizontal", 2, 2, 4, 2),
    Sketcher.Constraint("Horizontal", 1, 2, 5, 2),
    Sketcher.Constraint("Vertical", 0, 2, 3, 2),
    Sketcher.Constraint("Angle", 0, Q("150 deg")),
    Sketcher.Constraint("DistanceY", 2, 2, 2, 1, Q("3.05 mm")),
    Sketcher.Constraint("DistanceY", 3, 2, 0, 2, Q("6.1 mm")),
    Sketcher.Constraint("DistanceY", -1, 1, 0, 2, Q("35.19 mm")),
    Sketcher.Constraint("DistanceX", -1, 1, 0, 2, Q("14.69086 mm")),
])
sketch12.setExpression("Constraints[14]", "Params.sketch12_height")
pocket6 = doc.addObject("PartDesign::Pocket", "Pocket005")
body.addObject(pocket6)
pocket6.Profile = sketch12
pocket6.setExpression("Length", "Params.pocket6_length")

sketch13 = doc.addObject("Sketcher::SketchObject", "Sketch012")
body.addObject(sketch13)
sketch13.AttachmentSupport = (doc.YZ_Plane, [""])
sketch13.MapMode = "FlatFace"
sketch13.AttachmentOffset = App.Placement(Vector(0, 0, -47.591562), App.Rotation())
sketch13.addGeometry([
    Part.LineSegment(Vector(14.69086, -35.19, 0), Vector(17.332237, -33.665, 0)),
    Part.LineSegment(Vector(17.332237, -33.665, 0), Vector(17.332237, -30.615, 0)),
    Part.LineSegment(Vector(17.332237, -30.615, 0), Vector(14.69086, -29.09, 0)),
    Part.LineSegment(Vector(14.69086, -29.09, 0), Vector(12.049483, -30.615, 0)),
    Part.LineSegment(Vector(12.049483, -30.615, 0), Vector(12.049483, -33.665, 0)),
    Part.LineSegment(Vector(12.049483, -33.665, 0), Vector(14.69086, -35.19, 0)),
], False)
sketch13.addConstraint([
    Sketcher.Constraint("Coincident", 0, 2, 1, 1),
    Sketcher.Constraint("Coincident", 1, 2, 2, 1),
    Sketcher.Constraint("Coincident", 2, 2, 3, 1),
    Sketcher.Constraint("Coincident", 3, 2, 4, 1),
    Sketcher.Constraint("Coincident", 4, 2, 5, 1),
    Sketcher.Constraint("Coincident", 5, 2, 0, 1),
    Sketcher.Constraint("Vertical", 1),
    Sketcher.Constraint("Vertical", 4),
    Sketcher.Constraint("Parallel", 0, 3),
    Sketcher.Constraint("Parallel", 2, 5),
    Sketcher.Constraint("Horizontal", 1, 2, 3, 2),
    Sketcher.Constraint("Horizontal", 0, 2, 4, 2),
    Sketcher.Constraint("Vertical", 2, 2, 5, 2),
    Sketcher.Constraint("Angle", 0, Q("30 deg")),
    Sketcher.Constraint("DistanceY", 1, 1, 1, 2, Q("3.05 mm")),
    Sketcher.Constraint("DistanceY", 5, 2, 2, 2, Q("6.1 mm")),
    Sketcher.Constraint("DistanceY", 2, 2, -1, 1, Q("29.09 mm")),
    Sketcher.Constraint("DistanceX", -1, 1, 2, 2, Q("14.69086 mm")),
])
sketch13.setExpression("Constraints[14]", "Params.sketch13_height")
pocket7 = doc.addObject("PartDesign::Pocket", "Pocket006")
body.addObject(pocket7)
pocket7.Profile = sketch13
pocket7.setExpression("Length", "Params.pocket7_length")

doc.recompute()
